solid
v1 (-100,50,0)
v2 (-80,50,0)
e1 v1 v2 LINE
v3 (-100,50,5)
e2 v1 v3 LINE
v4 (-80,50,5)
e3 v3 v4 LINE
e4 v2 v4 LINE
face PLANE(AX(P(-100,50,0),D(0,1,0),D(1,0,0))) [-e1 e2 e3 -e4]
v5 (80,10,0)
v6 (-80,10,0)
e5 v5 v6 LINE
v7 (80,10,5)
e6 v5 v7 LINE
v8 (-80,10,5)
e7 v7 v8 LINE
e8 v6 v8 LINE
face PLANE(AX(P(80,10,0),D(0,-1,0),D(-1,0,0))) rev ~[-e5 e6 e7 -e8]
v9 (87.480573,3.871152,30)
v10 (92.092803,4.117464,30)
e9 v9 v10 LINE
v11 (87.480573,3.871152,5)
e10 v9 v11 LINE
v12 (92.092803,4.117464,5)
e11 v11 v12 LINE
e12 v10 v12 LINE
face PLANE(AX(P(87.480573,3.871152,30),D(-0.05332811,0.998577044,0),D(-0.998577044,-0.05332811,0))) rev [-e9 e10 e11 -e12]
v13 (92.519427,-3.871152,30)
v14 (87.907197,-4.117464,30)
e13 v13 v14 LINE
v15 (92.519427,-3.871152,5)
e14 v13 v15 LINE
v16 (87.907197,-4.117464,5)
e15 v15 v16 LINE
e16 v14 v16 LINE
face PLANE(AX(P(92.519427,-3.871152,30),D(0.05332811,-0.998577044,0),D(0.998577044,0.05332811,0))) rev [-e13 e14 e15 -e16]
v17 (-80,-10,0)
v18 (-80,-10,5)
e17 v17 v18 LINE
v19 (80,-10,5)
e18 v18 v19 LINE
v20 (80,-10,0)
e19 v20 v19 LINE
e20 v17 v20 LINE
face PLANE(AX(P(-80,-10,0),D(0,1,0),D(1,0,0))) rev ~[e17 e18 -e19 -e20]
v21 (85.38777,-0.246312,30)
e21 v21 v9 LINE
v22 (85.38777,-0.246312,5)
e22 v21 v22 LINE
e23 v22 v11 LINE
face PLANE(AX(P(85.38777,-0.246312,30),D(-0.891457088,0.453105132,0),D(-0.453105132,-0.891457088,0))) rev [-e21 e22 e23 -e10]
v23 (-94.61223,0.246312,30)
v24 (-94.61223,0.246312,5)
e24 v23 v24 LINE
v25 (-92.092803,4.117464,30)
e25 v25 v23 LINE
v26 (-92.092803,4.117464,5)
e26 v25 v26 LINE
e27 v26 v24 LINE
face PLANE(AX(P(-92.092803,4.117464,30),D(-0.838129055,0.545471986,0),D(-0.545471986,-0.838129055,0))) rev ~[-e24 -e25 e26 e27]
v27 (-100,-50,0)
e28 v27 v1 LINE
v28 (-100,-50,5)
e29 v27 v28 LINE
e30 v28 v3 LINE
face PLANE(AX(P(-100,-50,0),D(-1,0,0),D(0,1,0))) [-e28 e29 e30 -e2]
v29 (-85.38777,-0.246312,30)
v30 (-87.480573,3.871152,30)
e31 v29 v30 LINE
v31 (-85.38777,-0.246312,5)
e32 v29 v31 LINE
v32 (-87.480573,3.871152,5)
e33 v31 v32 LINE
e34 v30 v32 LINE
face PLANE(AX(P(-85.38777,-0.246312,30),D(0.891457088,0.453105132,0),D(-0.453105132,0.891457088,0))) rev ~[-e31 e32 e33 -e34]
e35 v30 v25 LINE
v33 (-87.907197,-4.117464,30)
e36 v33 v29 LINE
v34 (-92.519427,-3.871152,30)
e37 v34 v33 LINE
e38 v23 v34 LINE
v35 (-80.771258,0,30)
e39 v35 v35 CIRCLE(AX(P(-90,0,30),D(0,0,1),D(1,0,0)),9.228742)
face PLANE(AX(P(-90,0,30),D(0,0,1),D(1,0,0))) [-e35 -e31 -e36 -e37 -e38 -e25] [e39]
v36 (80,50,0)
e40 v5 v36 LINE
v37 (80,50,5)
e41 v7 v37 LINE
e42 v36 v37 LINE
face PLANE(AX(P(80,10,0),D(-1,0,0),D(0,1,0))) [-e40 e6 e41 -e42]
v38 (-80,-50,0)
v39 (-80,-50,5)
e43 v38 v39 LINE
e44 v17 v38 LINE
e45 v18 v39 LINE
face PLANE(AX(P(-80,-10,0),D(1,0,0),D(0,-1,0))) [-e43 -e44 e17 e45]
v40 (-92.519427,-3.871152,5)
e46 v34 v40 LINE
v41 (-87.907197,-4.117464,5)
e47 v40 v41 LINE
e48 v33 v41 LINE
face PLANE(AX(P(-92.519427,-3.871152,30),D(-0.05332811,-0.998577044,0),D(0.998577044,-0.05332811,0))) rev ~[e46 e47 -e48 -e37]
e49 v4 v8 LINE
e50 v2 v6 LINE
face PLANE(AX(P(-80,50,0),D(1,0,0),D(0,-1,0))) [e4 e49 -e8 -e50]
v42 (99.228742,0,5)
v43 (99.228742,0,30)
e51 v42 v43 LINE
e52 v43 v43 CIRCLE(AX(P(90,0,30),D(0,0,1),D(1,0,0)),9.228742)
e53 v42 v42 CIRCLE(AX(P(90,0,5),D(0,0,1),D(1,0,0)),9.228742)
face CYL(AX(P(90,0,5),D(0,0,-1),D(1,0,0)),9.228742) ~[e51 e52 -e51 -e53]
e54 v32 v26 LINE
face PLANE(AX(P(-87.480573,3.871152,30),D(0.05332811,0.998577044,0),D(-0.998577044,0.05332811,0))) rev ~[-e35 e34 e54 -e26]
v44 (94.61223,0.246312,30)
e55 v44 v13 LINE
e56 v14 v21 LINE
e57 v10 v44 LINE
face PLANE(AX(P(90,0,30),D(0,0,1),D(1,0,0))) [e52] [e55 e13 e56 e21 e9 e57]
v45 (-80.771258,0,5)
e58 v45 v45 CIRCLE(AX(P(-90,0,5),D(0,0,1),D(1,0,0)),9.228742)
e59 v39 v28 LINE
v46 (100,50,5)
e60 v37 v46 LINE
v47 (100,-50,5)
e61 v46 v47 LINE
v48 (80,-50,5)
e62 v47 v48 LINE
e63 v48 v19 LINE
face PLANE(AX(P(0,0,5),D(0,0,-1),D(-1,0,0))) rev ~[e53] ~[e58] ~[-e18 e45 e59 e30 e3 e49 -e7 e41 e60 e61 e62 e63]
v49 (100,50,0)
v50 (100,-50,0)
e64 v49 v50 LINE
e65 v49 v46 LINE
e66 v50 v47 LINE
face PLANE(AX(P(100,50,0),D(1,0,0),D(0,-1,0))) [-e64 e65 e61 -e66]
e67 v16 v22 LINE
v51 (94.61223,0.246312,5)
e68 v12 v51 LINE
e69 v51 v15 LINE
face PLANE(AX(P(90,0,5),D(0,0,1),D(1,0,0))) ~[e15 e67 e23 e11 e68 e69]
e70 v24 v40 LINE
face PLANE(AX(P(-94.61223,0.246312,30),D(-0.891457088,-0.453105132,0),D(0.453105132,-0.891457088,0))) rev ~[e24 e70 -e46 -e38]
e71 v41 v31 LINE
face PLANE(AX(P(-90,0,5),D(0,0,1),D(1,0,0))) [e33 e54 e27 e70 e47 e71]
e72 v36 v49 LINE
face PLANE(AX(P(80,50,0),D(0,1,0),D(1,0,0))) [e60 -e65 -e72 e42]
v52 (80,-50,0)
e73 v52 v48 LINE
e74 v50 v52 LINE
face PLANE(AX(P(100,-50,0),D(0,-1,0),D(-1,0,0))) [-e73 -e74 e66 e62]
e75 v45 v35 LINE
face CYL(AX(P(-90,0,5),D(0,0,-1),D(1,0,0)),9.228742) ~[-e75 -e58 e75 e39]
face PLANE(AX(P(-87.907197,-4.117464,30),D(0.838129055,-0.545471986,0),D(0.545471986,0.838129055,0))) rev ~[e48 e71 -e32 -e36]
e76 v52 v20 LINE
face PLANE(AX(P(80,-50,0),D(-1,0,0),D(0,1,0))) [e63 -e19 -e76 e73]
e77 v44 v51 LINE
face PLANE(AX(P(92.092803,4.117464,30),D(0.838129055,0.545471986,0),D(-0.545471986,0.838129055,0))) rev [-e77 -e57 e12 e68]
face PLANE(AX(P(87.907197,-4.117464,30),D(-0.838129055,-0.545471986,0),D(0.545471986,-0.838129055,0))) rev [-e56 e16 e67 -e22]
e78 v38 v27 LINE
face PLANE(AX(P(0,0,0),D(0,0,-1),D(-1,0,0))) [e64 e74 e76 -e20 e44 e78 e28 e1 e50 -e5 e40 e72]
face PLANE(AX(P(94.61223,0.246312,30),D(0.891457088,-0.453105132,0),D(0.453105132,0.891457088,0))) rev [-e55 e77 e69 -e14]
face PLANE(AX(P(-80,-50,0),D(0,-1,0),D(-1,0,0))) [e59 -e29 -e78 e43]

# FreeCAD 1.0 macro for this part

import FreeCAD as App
import Part
import Sketcher
from FreeCAD import Vector
Q = App.Units.Quantity

doc = App.newDocument("Part")
body = doc.addObject("PartDesign::Body", "Body")

sketch1 = body.newObject("Sketcher::SketchObject", "Sketch")
sketch1.AttachmentSupport = (doc.getObject("XY_Plane"), [""])
sketch1.MapMode = "FlatFace"
sketch1.addGeometry([
    Part.LineSegment(Vector(80, 10, 0), Vector(-80, 10, 0)),
    Part.LineSegment(Vector(-80, 10, 0), Vector(-80, 50, 0)),
    Part.LineSegment(Vector(-80, 50, 0), Vector(-100, 50, 0)),
    Part.LineSegment(Vector(-100, 50, 0), Vector(-100, -50, 0)),
    Part.LineSegment(Vector(-100, -50, 0), Vector(-80, -50, 0)),
    Part.LineSegment(Vector(-80, -50, 0), Vector(-80, -10, 0)),
    Part.LineSegment(Vector(-80, -10, 0), Vector(80, -10, 0)),
    Part.LineSegment(Vector(80, -10, 0), Vector(80, -50, 0)),
    Part.LineSegment(Vector(80, -50, 0), Vector(100, -50, 0)),
    Part.LineSegment(Vector(100, -50, 0), Vector(100, 50, 0)),
    Part.LineSegment(Vector(100, 50, 0), Vector(80, 50, 0)),
    Part.LineSegment(Vector(80, 50, 0), Vector(80, 10, 0)),
], False)
sketch1.addConstraint([
    Sketcher.Constraint("Coincident", 0, 2, 1, 1),
    Sketcher.Constraint("Coincident", 1, 2, 2, 1),
    Sketcher.Constraint("Coincident", 2, 2, 3, 1),
    Sketcher.Constraint("Coincident", 3, 2, 4, 1),
    Sketcher.Constraint("Coincident", 4, 2, 5, 1),
    Sketcher.Constraint("Coincident", 5, 2, 6, 1),
    Sketcher.Constraint("Coincident", 6, 2, 7, 1),
    Sketcher.Constraint("Coincident", 7, 2, 8, 1),
    Sketcher.Constraint("Coincident", 8, 2, 9, 1),
    Sketcher.Constraint("Coincident", 9, 2, 10, 1),
    Sketcher.Constraint("Coincident", 10, 2, 11, 1),
    Sketcher.Constraint("Coincident", 11, 2, 0, 1),
    Sketcher.Constraint("Horizontal", 0),
    Sketcher.Constraint("Vertical", 1),
    Sketcher.Constraint("Horizontal", 2),
    Sketcher.Constraint("Vertical", 3),
    Sketcher.Constraint("Horizontal", 4),
    Sketcher.Constraint("Vertical", 5),
    Sketcher.Constraint("Horizontal", 6),
    Sketcher.Constraint("Vertical", 7),
    Sketcher.Constraint("Horizontal", 8),
    Sketcher.Constraint("Vertical", 9),
    Sketcher.Constraint("Horizontal", 10),
    Sketcher.Constraint("Vertical", 11),
    Sketcher.Constraint("Symmetric", 0, 2, 6, 2, -1, 1),
    Sketcher.Constraint("Symmetric", 2, 2, 8, 2, -1, 1),
    Sketcher.Constraint("Symmetric", 4, 2, 10, 2, -1, 1),
    Sketcher.Constraint("Symmetric", 4, 2, 7, 2, -2),
    Sketcher.Constraint("DistanceX", 0, 2, 0, 1, Q("160 mm")),
    Sketcher.Constraint("DistanceX", 2, 2, 2, 1, Q("20 mm")),
    Sketcher.Constraint("DistanceY", 1, 1, 1, 2, Q("40 mm")),
    Sketcher.Constraint("DistanceY", 3, 2, 3, 1, Q("100 mm")),
])
pad1 = body.newObject("PartDesign::Pad", "Pad")
pad1.Profile = sketch1
pad1.Length = 5

sketch2 = body.newObject("Sketcher::SketchObject", "Sketch001")
sketch2.AttachmentSupport = (doc.getObject("XY_Plane"), [""])
sketch2.MapMode = "FlatFace"
sketch2.AttachmentOffset = App.Placement(Vector(0, 0, 5), App.Rotation())
sketch2.addGeometry([
    Part.Circle(Vector(90, 0, 0), Vector(0, 0, 1), 9),
    Part.Circle(Vector(-90, 0, 0), Vector(0, 0, 1), 9),
], False)
sketch2.addConstraint([
    Sketcher.Constraint("Equal", 0, 1),
    Sketcher.Constraint("Symmetric", 0, 3, 1, 3, -1, 1),
    Sketcher.Constraint("PointOnObject", 0, 3, -1),
    Sketcher.Constraint("DistanceX", -1, 1, 0, 3, Q("90 mm")),
    Sketcher.Constraint("Diameter", 0, Q("18.457484 mm")),
])
pad2 = body.newObject("PartDesign::Pad", "Pad001")
pad2.Profile = sketch2
pad2.Length = 25

sketch3 = body.newObject("Sketcher::SketchObject", "Sketch002")
sketch3.AttachmentSupport = (doc.getObject("XY_Plane"), [""])
sketch3.MapMode = "FlatFace"
sketch3.AttachmentOffset = App.Placement(Vector(0, 0, 30), App.Rotation())
sketch3.addGeometry([
    Part.LineSegment(Vector(-87.5, 3.9, 0), Vector(-92.1, 4.1, 0)),
    Part.LineSegment(Vector(-92.1, 4.1, 0), Vector(-94.6, 0.2, 0)),
    Part.LineSegment(Vector(-94.6, 0.2, 0), Vector(-92.5, -3.9, 0)),
    Part.LineSegment(Vector(-92.5, -3.9, 0), Vector(-87.9, -4.1, 0)),
    Part.LineSegment(Vector(-87.9, -4.1, 0), Vector(-85.4, -0.2, 0)),
    Part.LineSegment(Vector(-85.4, -0.2, 0), Vector(-87.5, 3.9, 0)),
], False)
sketch3.addConstraint([
    Sketcher.Constraint("Coincident", 0, 2, 1, 1),
    Sketcher.Constraint("Coincident", 1, 2, 2, 1),
    Sketcher.Constraint("Coincident", 2, 2, 3, 1),
    Sketcher.Constraint("Coincident", 3, 2, 4, 1),
    Sketcher.Constraint("Coincident", 4, 2, 5, 1),
    Sketcher.Constraint("Coincident", 5, 2, 0, 1),
    Sketcher.Constraint("Parallel", 0, 3),
    Sketcher.Constraint("Parallel", 1, 4),
    Sketcher.Constraint("Parallel", 2, 5),
    Sketcher.Constraint("Equal", 0, 1),
    Sketcher.Constraint("Equal", 1, 2),
    Sketcher.Constraint("Equal", 2, 3),
    Sketcher.Constraint("Distance", 1, Q("4.618802 mm")),
    Sketcher.Constraint("DistanceX", 1, 2, -1, 1, Q("94.61223 mm")),
    Sketcher.Constraint("DistanceY", 2, 2, -1, 1, Q("3.871152 mm")),
    Sketcher.Constraint("DistanceX", 4, 2, -1, 1, Q("85.38777 mm")),
    Sketcher.Constraint("DistanceY", -1, 1, 5, 2, Q("3.871152 mm")),
    Sketcher.Constraint("DistanceY", 1, 2, 0, 2, Q("3.871152 mm")),
])
pocket1 = body.newObject("PartDesign::Pocket", "Pocket")
pocket1.Profile = sketch3
pocket1.Length = 25
doc.recompute()

mirrored = body.newObject("PartDesign::Mirrored", "Mirrored")
mirrored.Originals = [pocket1]
mirrored.MirrorPlane = (doc.getObject("YZ_Plane"), [""])
body.Tip = mirrored

doc.recompute()
